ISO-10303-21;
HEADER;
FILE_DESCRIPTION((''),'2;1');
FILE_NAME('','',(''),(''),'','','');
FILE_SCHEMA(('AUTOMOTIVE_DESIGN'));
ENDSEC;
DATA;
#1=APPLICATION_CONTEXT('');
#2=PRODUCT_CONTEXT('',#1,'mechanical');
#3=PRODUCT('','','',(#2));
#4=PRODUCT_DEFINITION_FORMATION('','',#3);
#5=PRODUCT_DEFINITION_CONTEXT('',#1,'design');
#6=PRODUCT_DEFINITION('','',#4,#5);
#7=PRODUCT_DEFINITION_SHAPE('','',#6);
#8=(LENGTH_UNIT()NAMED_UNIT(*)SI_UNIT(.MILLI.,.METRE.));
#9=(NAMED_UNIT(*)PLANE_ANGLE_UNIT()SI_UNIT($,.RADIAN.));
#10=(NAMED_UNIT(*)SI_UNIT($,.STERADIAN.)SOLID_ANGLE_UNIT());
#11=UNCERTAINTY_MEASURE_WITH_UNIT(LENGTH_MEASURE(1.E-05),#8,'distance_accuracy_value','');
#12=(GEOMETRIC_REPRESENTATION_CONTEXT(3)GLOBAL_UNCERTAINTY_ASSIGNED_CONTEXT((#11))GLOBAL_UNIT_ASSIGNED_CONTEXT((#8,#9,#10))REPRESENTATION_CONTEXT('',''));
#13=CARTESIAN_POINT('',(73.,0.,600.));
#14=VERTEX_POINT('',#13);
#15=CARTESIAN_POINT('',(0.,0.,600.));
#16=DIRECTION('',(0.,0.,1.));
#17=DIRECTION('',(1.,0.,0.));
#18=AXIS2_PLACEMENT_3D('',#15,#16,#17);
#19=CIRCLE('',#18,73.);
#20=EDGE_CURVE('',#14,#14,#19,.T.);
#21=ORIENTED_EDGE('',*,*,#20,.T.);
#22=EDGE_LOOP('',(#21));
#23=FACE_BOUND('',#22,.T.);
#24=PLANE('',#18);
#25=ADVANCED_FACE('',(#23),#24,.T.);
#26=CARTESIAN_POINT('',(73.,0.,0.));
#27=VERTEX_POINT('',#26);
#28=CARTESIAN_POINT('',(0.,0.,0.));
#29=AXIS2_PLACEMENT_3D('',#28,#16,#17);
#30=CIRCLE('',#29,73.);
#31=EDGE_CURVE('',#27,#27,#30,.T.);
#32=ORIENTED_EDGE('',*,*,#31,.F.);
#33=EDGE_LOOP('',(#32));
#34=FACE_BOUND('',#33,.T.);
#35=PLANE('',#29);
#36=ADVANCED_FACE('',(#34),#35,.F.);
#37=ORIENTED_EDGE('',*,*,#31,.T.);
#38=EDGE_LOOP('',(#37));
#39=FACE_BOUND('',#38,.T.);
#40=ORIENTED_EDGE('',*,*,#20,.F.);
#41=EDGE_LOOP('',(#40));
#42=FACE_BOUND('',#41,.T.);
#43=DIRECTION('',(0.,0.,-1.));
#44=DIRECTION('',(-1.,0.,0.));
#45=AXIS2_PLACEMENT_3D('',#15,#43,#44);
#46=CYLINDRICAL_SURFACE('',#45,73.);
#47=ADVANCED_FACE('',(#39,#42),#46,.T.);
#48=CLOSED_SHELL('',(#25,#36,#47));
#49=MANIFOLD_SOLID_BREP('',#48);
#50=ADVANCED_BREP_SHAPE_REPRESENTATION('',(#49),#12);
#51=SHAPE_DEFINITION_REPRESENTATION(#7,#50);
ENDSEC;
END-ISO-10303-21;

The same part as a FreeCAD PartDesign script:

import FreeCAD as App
import Part
import Sketcher

V = App.Vector
Q = App.Units.Quantity

doc = App.newDocument("Part")
body = doc.addObject("PartDesign::Body", "Body")

sketch1 = doc.addObject("Sketcher::SketchObject", "Sketch")
body.addObject(sketch1)
sketch1.AttachmentSupport = (doc.XY_Plane, [""])
sketch1.MapMode = "FlatFace"
sketch1.addGeometry(Part.Circle(V(0, 0, 0), V(0, 0, 1), 73), False)
sketch1.addConstraint(Sketcher.Constraint("Coincident", 0, 3, -1, 1))
sketch1.addConstraint(Sketcher.Constraint("Diameter", 0, Q("146 mm")))
pad1 = doc.addObject("PartDesign::Pad", "Pad")
body.addObject(pad1)
pad1.Profile = sketch1
pad1.Length = 600

doc.recompute()
